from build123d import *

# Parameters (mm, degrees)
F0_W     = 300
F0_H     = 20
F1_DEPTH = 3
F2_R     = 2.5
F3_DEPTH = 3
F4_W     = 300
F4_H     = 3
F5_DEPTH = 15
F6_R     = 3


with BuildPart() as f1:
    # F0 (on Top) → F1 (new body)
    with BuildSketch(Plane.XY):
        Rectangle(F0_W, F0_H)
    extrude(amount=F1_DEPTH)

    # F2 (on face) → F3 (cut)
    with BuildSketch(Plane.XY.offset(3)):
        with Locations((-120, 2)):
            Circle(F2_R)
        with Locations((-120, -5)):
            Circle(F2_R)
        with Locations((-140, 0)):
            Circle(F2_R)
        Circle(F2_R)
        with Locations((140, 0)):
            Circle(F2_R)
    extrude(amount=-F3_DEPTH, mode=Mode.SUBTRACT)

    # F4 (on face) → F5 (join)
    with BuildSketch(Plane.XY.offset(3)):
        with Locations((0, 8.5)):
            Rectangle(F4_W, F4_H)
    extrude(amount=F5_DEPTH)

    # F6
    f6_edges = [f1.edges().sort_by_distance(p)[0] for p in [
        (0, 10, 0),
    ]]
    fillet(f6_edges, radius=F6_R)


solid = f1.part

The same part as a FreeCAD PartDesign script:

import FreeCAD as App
import Part
import Sketcher
from FreeCAD import Vector


def edges_at(feature, points):
    """Names of the edges that pass closest to the given points."""
    edges = feature.Shape.Edges
    near = lambda p: min(range(len(edges)), key=lambda i: edges[i].distToShape(Part.Vertex(*p))[0])
    return sorted({f"Edge{near(p) + 1}" for p in points})


def add_polygon(sketch, points):
    """Adds a closed chain of lines whose ends are joined by coincident constraints."""
    first, n = sketch.GeometryCount, len(points)
    for a, b in zip(points, points[1:] + points[:1]):
        sketch.addGeometry(Part.LineSegment(App.Vector(*a, 0), App.Vector(*b, 0)), False)
    for i in range(n):
        sketch.addConstraint(Sketcher.Constraint("Coincident", first + i, 2, first + (i + 1) % n, 1))

doc = App.newDocument("Part")
body = doc.addObject("PartDesign::Body", "Body")

sketch1 = body.newObject("Sketcher::SketchObject", "Sketch")
sketch1.AttachmentSupport = (doc.getObject("XY_Plane"), [""])
sketch1.MapMode = "FlatFace"
add_polygon(sketch1, [(-150, 10), (-150, -10), (150, -10), (150, 10)])
sketch1.addConstraint([
    Sketcher.Constraint("Vertical", 0),
    Sketcher.Constraint("Horizontal", 1),
    Sketcher.Constraint("Vertical", 2),
    Sketcher.Constraint("Horizontal", 3),
    Sketcher.Constraint("Symmetric", 0, 2, 2, 2, -1, 1),
    Sketcher.Constraint("DistanceX", 1, 1, 1, 2, 300.0),
    Sketcher.Constraint("DistanceY", 0, 2, 0, 1, 20.0),
])
pad1 = body.newObject("PartDesign::Pad", "Pad")
pad1.Profile = sketch1
pad1.Length = 3

sketch2 = body.newObject("Sketcher::SketchObject", "Sketch001")
sketch2.AttachmentSupport = (doc.getObject("XY_Plane"), [""])
sketch2.MapMode = "FlatFace"
sketch2.AttachmentOffset = App.Placement(Vector(0, 0, 3), App.Rotation())
sketch2.addGeometry([
    Part.Circle(Vector(-120, 2, 0), Vector(0, 0, 1), 2.5),
    Part.Circle(Vector(-120, -5, 0), Vector(0, 0, 1), 2.5),
    Part.Circle(Vector(-140, 0, 0), Vector(0, 0, 1), 2.5),
    Part.Circle(Vector(0, 0, 0), Vector(0, 0, 1), 2.5),
    Part.Circle(Vector(140, 0, 0), Vector(0, 0, 1), 2.5),
], False)
sketch2.addConstraint([
    Sketcher.Constraint("Coincident", 3, 3, -1, 1),
    Sketcher.Constraint("Equal", 0, 1),
    Sketcher.Constraint("Equal", 1, 2),
    Sketcher.Constraint("Equal", 2, 3),
    Sketcher.Constraint("Equal", 3, 4),
    Sketcher.Constraint("Symmetric", 2, 3, 4, 3, -1, 1),
    Sketcher.Constraint("PointOnObject", 2, 3, -1),
    Sketcher.Constraint("Vertical", 0, 3, 1, 3),
    Sketcher.Constraint("Diameter", 0, 5.0),
    Sketcher.Constraint("DistanceX", 0, 3, -1, 1, 120.0),
    Sketcher.Constraint("DistanceY", -1, 1, 0, 3, 2.0),
    Sketcher.Constraint("DistanceY", 1, 3, -1, 1, 5.0),
    Sketcher.Constraint("DistanceX", 2, 3, -1, 1, 140.0),
])
pocket1 = body.newObject("PartDesign::Pocket", "Pocket")
pocket1.Profile = sketch2
pocket1.Length = 3

sketch3 = body.newObject("Sketcher::SketchObject", "Sketch002")
sketch3.AttachmentSupport = (doc.getObject("XY_Plane"), [""])
sketch3.MapMode = "FlatFace"
sketch3.AttachmentOffset = App.Placement(Vector(0, 0, 3), App.Rotation())
add_polygon(sketch3, [(-150, 10), (-150, 7), (150, 7), (150, 10)])
sketch3.addConstraint([
    Sketcher.Constraint("Vertical", 0),
    Sketcher.Constraint("Horizontal", 1),
    Sketcher.Constraint("Vertical", 2),
    Sketcher.Constraint("Horizontal", 3),
    Sketcher.Constraint("DistanceX", 1, 1, 1, 2, 300.0),
    Sketcher.Constraint("DistanceY", 0, 2, 0, 1, 3.0),
    Sketcher.Constraint("DistanceX", 0, 2, -1, 1, 150.0),
    Sketcher.Constraint("DistanceY", -1, 1, 0, 2, 7.0),
])
pad2 = body.newObject("PartDesign::Pad", "Pad001")
pad2.Profile = sketch3
pad2.Length = 15
doc.recompute()

fillet = body.newObject("PartDesign::Fillet", "Fillet")
fillet.Base = (pad2, edges_at(pad2, [(0, 10, 0)]))
fillet.Radius = 3

doc.recompute()
